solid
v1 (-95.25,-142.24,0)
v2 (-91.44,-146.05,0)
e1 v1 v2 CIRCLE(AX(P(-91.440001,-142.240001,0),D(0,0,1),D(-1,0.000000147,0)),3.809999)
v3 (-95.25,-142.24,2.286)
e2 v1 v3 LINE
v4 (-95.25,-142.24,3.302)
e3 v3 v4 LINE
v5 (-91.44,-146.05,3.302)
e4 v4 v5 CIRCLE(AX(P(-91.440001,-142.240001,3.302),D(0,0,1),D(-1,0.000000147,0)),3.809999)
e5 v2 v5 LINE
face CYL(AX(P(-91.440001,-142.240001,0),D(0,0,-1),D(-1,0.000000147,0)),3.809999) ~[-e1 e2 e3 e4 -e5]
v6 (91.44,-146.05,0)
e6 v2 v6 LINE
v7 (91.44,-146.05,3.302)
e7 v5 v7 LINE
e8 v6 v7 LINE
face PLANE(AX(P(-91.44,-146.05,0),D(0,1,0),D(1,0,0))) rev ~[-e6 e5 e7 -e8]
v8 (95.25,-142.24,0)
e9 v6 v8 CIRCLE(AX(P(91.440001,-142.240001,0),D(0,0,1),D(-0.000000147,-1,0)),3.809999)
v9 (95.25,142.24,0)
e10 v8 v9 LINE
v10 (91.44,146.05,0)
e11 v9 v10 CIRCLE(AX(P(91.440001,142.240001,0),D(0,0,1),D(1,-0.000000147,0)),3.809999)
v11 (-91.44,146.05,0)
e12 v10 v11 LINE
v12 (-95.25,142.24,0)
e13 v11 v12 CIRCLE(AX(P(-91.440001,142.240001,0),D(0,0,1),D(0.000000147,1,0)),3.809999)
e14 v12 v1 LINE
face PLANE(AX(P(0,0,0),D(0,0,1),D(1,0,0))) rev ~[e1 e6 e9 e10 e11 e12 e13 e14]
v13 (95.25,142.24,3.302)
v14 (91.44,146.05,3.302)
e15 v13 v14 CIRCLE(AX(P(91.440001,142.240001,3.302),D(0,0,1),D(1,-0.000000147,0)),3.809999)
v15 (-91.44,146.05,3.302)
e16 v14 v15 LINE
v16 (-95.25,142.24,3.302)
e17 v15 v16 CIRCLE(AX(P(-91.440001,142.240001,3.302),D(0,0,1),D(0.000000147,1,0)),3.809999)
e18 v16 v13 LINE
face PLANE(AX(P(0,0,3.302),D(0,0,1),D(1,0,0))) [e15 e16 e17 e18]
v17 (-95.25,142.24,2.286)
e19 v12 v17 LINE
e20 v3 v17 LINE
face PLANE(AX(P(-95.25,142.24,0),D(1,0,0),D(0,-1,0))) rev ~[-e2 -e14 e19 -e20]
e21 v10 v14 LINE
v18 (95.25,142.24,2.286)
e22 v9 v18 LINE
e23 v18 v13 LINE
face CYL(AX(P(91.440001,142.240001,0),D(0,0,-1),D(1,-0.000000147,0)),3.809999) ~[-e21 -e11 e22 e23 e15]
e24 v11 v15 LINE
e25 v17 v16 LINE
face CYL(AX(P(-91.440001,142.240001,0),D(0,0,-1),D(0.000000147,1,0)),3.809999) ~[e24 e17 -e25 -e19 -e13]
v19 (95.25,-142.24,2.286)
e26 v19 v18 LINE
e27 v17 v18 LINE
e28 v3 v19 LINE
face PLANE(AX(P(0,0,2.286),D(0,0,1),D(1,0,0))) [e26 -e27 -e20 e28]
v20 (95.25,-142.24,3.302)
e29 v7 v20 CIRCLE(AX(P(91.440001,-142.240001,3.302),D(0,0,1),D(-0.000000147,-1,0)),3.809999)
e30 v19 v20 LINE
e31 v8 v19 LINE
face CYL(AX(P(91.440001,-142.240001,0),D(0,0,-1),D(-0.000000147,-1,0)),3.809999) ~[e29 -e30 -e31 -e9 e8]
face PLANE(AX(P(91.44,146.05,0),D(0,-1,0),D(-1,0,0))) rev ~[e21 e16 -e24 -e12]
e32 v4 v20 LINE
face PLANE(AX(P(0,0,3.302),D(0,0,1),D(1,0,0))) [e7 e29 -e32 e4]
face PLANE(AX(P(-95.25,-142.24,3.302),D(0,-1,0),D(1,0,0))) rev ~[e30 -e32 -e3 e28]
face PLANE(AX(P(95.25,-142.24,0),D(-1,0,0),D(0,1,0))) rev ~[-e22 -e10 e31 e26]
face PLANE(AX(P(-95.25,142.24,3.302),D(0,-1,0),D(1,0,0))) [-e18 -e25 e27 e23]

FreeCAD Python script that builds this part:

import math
import FreeCAD as App
import Part
import Sketcher
Q = App.Units.Quantity

doc = App.newDocument("Part")
body = doc.addObject("PartDesign::Body", "Body")

# Sketch on XY plane
sketch1 = body.newObject("Sketcher::SketchObject", "Sketch")
sketch1.AttachmentSupport = (doc.getObject("XY_Plane"), [""])
sketch1.MapMode = "FlatFace"
sketch1.addGeometry([
    Part.LineSegment(App.Vector(91.4, 146.1, 0), App.Vector(-91.4, 146.1, 0)),  # 0
    Part.ArcOfCircle(Part.Circle(App.Vector(-91.4, 142.2, 0), App.Vector(0, 0, 1), 3.8), math.radians(90), math.radians(180)),  # 1
    Part.LineSegment(App.Vector(-95.2, 142.2, 0), App.Vector(-95.2, -142.2, 0)),  # 2
    Part.ArcOfCircle(Part.Circle(App.Vector(-91.4, -142.2, 0), App.Vector(0, 0, 1), 3.8), math.radians(180), math.radians(270)),  # 3
    Part.LineSegment(App.Vector(-91.4, -146.1, 0), App.Vector(91.4, -146.1, 0)),  # 4
    Part.ArcOfCircle(Part.Circle(App.Vector(91.4, -142.2, 0), App.Vector(0, 0, 1), 3.8), math.radians(-90), math.radians(0)),  # 5
    Part.LineSegment(App.Vector(95.2, -142.2, 0), App.Vector(95.2, 142.2, 0)),  # 6
    Part.ArcOfCircle(Part.Circle(App.Vector(91.4, 142.2, 0), App.Vector(0, 0, 1), 3.8), math.radians(0), math.radians(90)),  # 7
], False)
sketch1.addConstraint([
    Sketcher.Constraint("Tangent", 0, 2, 1, 1),
    Sketcher.Constraint("Tangent", 1, 2, 2, 1),
    Sketcher.Constraint("Tangent", 2, 2, 3, 1),
    Sketcher.Constraint("Tangent", 3, 2, 4, 1),
    Sketcher.Constraint("Tangent", 4, 2, 5, 1),
    Sketcher.Constraint("Tangent", 5, 2, 6, 1),
    Sketcher.Constraint("Tangent", 6, 2, 7, 1),
    Sketcher.Constraint("Tangent", 7, 2, 0, 1),
    Sketcher.Constraint("Horizontal", 0),
    Sketcher.Constraint("Vertical", 2),
    Sketcher.Constraint("Horizontal", 4),
    Sketcher.Constraint("Vertical", 6),
    Sketcher.Constraint("Equal", 1, 3),
    Sketcher.Constraint("Equal", 3, 5),
    Sketcher.Constraint("Equal", 5, 7),
    Sketcher.Constraint("Symmetric", 1, 3, 5, 3, -1, 1),
    Sketcher.Constraint("Radius", 1, Q("0.15 in")),
    Sketcher.Constraint("DistanceX", 0, 2, 0, 1, Q("7.2 in")),
    Sketcher.Constraint("DistanceY", 2, 2, 2, 1, Q("11.2 in")),
])
pad1 = body.newObject("PartDesign::Pad", "Pad")
pad1.Profile = sketch1
pad1.Length = Q("0.13 in")

# Sketch on XY plane
sketch2 = body.newObject("Sketcher::SketchObject", "Sketch001")
sketch2.AttachmentSupport = (doc.getObject("XY_Plane"), [""])
sketch2.MapMode = "FlatFace"
sketch2.AttachmentOffset = App.Placement(App.Vector(0, 0, 0.13 * 25.4), App.Rotation())
sketch2.addGeometry([
    Part.LineSegment(App.Vector(-95, 142, 0), App.Vector(-95, -142, 0)),
    Part.LineSegment(App.Vector(-95, -142, 0), App.Vector(95, -142, 0)),
    Part.LineSegment(App.Vector(95, -142, 0), App.Vector(95, 142, 0)),
    Part.LineSegment(App.Vector(95, 142, 0), App.Vector(-95, 142, 0)),
], False)
sketch2.addConstraint([
    Sketcher.Constraint("Coincident", 0, 2, 1, 1),
    Sketcher.Constraint("Coincident", 1, 2, 2, 1),
    Sketcher.Constraint("Coincident", 2, 2, 3, 1),
    Sketcher.Constraint("Coincident", 3, 2, 0, 1),
    Sketcher.Constraint("Vertical", 0),
    Sketcher.Constraint("Horizontal", 1),
    Sketcher.Constraint("Vertical", 2),
    Sketcher.Constraint("Horizontal", 3),
    Sketcher.Constraint("Symmetric", 0, 2, 2, 2, -1, 1),
    Sketcher.Constraint("DistanceX", 1, 1, 1, 2, Q("7.5 in")),
    Sketcher.Constraint("DistanceY", 0, 2, 0, 1, Q("11.2 in")),
])
pocket1 = body.newObject("PartDesign::Pocket", "Pocket")
pocket1.Profile = sketch2
pocket1.Length = Q("0.04 in")

doc.recompute()
